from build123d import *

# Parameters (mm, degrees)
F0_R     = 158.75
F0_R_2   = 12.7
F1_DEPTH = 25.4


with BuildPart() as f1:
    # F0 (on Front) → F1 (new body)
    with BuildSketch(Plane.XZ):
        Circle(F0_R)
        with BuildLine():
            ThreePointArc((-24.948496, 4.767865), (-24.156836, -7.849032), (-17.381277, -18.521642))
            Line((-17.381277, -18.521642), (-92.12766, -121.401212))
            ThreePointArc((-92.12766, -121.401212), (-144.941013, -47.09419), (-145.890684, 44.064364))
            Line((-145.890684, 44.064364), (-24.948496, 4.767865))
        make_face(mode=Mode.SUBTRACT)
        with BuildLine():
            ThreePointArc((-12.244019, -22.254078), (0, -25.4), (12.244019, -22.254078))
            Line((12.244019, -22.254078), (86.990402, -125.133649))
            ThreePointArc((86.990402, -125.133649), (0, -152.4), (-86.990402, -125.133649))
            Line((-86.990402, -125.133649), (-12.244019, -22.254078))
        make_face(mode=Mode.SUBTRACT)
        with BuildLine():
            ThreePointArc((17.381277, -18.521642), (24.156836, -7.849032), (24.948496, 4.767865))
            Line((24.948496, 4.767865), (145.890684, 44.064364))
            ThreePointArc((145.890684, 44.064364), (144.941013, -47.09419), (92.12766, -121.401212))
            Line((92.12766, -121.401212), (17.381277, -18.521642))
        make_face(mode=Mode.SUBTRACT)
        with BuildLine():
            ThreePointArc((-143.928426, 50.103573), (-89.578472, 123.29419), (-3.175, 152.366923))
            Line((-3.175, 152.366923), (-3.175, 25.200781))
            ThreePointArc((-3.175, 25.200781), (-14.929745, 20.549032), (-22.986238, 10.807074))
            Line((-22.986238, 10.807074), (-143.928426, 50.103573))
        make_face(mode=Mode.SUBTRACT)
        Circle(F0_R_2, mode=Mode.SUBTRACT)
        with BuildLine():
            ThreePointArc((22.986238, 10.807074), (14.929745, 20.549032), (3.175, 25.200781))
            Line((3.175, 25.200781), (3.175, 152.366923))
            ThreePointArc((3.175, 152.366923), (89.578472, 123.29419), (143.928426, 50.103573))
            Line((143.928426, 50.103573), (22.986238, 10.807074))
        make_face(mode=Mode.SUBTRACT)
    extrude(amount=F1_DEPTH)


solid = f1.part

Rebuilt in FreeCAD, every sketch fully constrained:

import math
import FreeCAD as App
import Part
import Sketcher

V = App.Vector
Q = App.Units.Quantity

doc = App.newDocument("Part")
body = doc.addObject("PartDesign::Body", "Body")

# Sketch on XZ plane
sketch1 = body.newObject("Sketcher::SketchObject", "Sketch")
sketch1.AttachmentSupport = (doc.getObject("XZ_Plane"), [""])
sketch1.MapMode = "FlatFace"
sketch1.addGeometry([
    Part.Circle(V(0, 0, 0), V(0, 0, 1), 159),  # 0
    Part.LineSegment(V(-146, 44, 0), V(-25, 5, 0)),  # 1
    Part.ArcOfCircle(Part.Circle(V(0, 0, 0), V(0, 0, 1), 25), math.radians(169), math.radians(227)),  # 2
    Part.LineSegment(V(-17, -19, 0), V(-92, -121, 0)),  # 3
    Part.ArcOfCircle(Part.Circle(V(0, 0, 0), V(0, 0, 1), 152), math.radians(163), math.radians(233)),  # 4
    Part.LineSegment(V(-87, -125, 0), V(-12, -22, 0)),  # 5
    Part.ArcOfCircle(Part.Circle(V(0, 0, 0), V(0, 0, 1), 25), math.radians(-119), math.radians(-61)),  # 6
    Part.LineSegment(V(12, -22, 0), V(87, -125, 0)),  # 7
    Part.ArcOfCircle(Part.Circle(V(0, 0, 0), V(0, 0, 1), 152), math.radians(-125), math.radians(-55)),  # 8
    Part.LineSegment(V(92, -121, 0), V(17, -19, 0)),  # 9
    Part.ArcOfCircle(Part.Circle(V(0, 0, 0), V(0, 0, 1), 25), math.radians(-47), math.radians(11)),  # 10
    Part.LineSegment(V(25, 5, 0), V(146, 44, 0)),  # 11
    Part.ArcOfCircle(Part.Circle(V(0, 0, 0), V(0, 0, 1), 152), math.radians(-53), math.radians(17)),  # 12
    Part.LineSegment(V(-23, 11, 0), V(-144, 50, 0)),  # 13
    Part.ArcOfCircle(Part.Circle(V(0, 0, 0), V(0, 0, 1), 152), math.radians(91), math.radians(161)),  # 14
    Part.LineSegment(V(-3, 152, 0), V(-3, 25, 0)),  # 15
    Part.ArcOfCircle(Part.Circle(V(0, 0, 0), V(0, 0, 1), 25), math.radians(97), math.radians(155)),  # 16
    Part.Circle(V(0, 0, 0), V(0, 0, 1), 13),  # 17
    Part.LineSegment(V(144, 50, 0), V(23, 11, 0)),  # 18
    Part.ArcOfCircle(Part.Circle(V(0, 0, 0), V(0, 0, 1), 25), math.radians(25), math.radians(83)),  # 19
    Part.LineSegment(V(3, 25, 0), V(3, 152, 0)),  # 20
    Part.ArcOfCircle(Part.Circle(V(0, 0, 0), V(0, 0, 1), 152), math.radians(19), math.radians(89)),  # 21
], False)
sketch1.addConstraint([
    Sketcher.Constraint("Coincident", 1, 2, 2, 1),
    Sketcher.Constraint("Coincident", 2, 2, 3, 1),
    Sketcher.Constraint("Coincident", 3, 2, 4, 2),
    Sketcher.Constraint("Coincident", 4, 1, 1, 1),
    Sketcher.Constraint("Coincident", 5, 2, 6, 1),
    Sketcher.Constraint("Coincident", 6, 2, 7, 1),
    Sketcher.Constraint("Coincident", 7, 2, 8, 2),
    Sketcher.Constraint("Coincident", 8, 1, 5, 1),
    Sketcher.Constraint("Coincident", 9, 2, 10, 1),
    Sketcher.Constraint("Coincident", 10, 2, 11, 1),
    Sketcher.Constraint("Coincident", 11, 2, 12, 2),
    Sketcher.Constraint("Coincident", 12, 1, 9, 1),
    Sketcher.Constraint("Coincident", 13, 2, 14, 2),
    Sketcher.Constraint("Coincident", 14, 1, 15, 1),
    Sketcher.Constraint("Coincident", 15, 2, 16, 1),
    Sketcher.Constraint("Coincident", 16, 2, 13, 1),
    Sketcher.Constraint("Coincident", 18, 2, 19, 1),
    Sketcher.Constraint("Coincident", 19, 2, 20, 1),
    Sketcher.Constraint("Coincident", 20, 2, 21, 2),
    Sketcher.Constraint("Coincident", 21, 1, 18, 1),
    Sketcher.Constraint("Vertical", 15),
    Sketcher.Constraint("Vertical", 20),
    Sketcher.Constraint("Coincident", 0, 3, -1, 1),
    Sketcher.Constraint("Coincident", 2, 3, -1, 1),
    Sketcher.Constraint("Coincident", 4, 3, -1, 1),
    Sketcher.Constraint("Coincident", 6, 3, -1, 1),
    Sketcher.Constraint("Coincident", 8, 3, -1, 1),
    Sketcher.Constraint("Coincident", 10, 3, -1, 1),
    Sketcher.Constraint("Coincident", 12, 3, -1, 1),
    Sketcher.Constraint("Coincident", 14, 3, -1, 1),
    Sketcher.Constraint("Coincident", 16, 3, -1, 1),
    Sketcher.Constraint("Coincident", 17, 3, -1, 1),
    Sketcher.Constraint("Coincident", 19, 3, -1, 1),
    Sketcher.Constraint("Coincident", 21, 3, -1, 1),
    Sketcher.Constraint("Equal", 2, 10),
    Sketcher.Constraint("Equal", 4, 12),
    Sketcher.Constraint("Equal", 12, 14),
    Sketcher.Constraint("Equal", 10, 16),
    Sketcher.Constraint("Equal", 16, 19),
    Sketcher.Constraint("Equal", 14, 21),
    Sketcher.Constraint("Parallel", 3, 5),
    Sketcher.Constraint("Parallel", 7, 9),
    Sketcher.Constraint("Parallel", 1, 13),
    Sketcher.Constraint("Parallel", 11, 18),
    Sketcher.Constraint("Horizontal", 5, 2, 6, 2),
    Sketcher.Constraint("Horizontal", 7, 2, 8, 1),
    Sketcher.Constraint("Horizontal", 2, 2, 9, 2),
    Sketcher.Constraint("Horizontal", 1, 2, 10, 2),
    Sketcher.Constraint("Horizontal", 4, 1, 11, 2),
    Sketcher.Constraint("Horizontal", 16, 2, 18, 2),
    Sketcher.Constraint("Horizontal", 15, 2, 19, 2),
    Sketcher.Constraint("Equal", 1, 3),
    Sketcher.Constraint("Equal", 3, 5),
    Sketcher.Constraint("Equal", 11, 13),
    Sketcher.Constraint("Diameter", 17, Q("1 in")),
    Sketcher.Constraint("Radius", 2, Q("0.9999998 in")),
    Sketcher.Constraint("Radius", 4, Q("6 in")),
    Sketcher.Constraint("Radius", 6, Q("0.9999999 in")),
    Sketcher.Constraint("Radius", 8, Q("6.0000001 in")),
    Sketcher.Constraint("Diameter", 0, Q("12.5 in")),
    Sketcher.Constraint("Angle", 1, Q("-18 deg")),
    Sketcher.Constraint("Angle", 3, Q("-126 deg")),
    Sketcher.Constraint("DistanceX", 15, 2, 19, 2, Q("0.25 in")),
    Sketcher.Constraint("DistanceX", 3, 2, -1, 1, 92.12766),
])
pad1 = body.newObject("PartDesign::Pad", "Pad")
pad1.Profile = sketch1
pad1.Length = Q("1 in")

doc.recompute()
